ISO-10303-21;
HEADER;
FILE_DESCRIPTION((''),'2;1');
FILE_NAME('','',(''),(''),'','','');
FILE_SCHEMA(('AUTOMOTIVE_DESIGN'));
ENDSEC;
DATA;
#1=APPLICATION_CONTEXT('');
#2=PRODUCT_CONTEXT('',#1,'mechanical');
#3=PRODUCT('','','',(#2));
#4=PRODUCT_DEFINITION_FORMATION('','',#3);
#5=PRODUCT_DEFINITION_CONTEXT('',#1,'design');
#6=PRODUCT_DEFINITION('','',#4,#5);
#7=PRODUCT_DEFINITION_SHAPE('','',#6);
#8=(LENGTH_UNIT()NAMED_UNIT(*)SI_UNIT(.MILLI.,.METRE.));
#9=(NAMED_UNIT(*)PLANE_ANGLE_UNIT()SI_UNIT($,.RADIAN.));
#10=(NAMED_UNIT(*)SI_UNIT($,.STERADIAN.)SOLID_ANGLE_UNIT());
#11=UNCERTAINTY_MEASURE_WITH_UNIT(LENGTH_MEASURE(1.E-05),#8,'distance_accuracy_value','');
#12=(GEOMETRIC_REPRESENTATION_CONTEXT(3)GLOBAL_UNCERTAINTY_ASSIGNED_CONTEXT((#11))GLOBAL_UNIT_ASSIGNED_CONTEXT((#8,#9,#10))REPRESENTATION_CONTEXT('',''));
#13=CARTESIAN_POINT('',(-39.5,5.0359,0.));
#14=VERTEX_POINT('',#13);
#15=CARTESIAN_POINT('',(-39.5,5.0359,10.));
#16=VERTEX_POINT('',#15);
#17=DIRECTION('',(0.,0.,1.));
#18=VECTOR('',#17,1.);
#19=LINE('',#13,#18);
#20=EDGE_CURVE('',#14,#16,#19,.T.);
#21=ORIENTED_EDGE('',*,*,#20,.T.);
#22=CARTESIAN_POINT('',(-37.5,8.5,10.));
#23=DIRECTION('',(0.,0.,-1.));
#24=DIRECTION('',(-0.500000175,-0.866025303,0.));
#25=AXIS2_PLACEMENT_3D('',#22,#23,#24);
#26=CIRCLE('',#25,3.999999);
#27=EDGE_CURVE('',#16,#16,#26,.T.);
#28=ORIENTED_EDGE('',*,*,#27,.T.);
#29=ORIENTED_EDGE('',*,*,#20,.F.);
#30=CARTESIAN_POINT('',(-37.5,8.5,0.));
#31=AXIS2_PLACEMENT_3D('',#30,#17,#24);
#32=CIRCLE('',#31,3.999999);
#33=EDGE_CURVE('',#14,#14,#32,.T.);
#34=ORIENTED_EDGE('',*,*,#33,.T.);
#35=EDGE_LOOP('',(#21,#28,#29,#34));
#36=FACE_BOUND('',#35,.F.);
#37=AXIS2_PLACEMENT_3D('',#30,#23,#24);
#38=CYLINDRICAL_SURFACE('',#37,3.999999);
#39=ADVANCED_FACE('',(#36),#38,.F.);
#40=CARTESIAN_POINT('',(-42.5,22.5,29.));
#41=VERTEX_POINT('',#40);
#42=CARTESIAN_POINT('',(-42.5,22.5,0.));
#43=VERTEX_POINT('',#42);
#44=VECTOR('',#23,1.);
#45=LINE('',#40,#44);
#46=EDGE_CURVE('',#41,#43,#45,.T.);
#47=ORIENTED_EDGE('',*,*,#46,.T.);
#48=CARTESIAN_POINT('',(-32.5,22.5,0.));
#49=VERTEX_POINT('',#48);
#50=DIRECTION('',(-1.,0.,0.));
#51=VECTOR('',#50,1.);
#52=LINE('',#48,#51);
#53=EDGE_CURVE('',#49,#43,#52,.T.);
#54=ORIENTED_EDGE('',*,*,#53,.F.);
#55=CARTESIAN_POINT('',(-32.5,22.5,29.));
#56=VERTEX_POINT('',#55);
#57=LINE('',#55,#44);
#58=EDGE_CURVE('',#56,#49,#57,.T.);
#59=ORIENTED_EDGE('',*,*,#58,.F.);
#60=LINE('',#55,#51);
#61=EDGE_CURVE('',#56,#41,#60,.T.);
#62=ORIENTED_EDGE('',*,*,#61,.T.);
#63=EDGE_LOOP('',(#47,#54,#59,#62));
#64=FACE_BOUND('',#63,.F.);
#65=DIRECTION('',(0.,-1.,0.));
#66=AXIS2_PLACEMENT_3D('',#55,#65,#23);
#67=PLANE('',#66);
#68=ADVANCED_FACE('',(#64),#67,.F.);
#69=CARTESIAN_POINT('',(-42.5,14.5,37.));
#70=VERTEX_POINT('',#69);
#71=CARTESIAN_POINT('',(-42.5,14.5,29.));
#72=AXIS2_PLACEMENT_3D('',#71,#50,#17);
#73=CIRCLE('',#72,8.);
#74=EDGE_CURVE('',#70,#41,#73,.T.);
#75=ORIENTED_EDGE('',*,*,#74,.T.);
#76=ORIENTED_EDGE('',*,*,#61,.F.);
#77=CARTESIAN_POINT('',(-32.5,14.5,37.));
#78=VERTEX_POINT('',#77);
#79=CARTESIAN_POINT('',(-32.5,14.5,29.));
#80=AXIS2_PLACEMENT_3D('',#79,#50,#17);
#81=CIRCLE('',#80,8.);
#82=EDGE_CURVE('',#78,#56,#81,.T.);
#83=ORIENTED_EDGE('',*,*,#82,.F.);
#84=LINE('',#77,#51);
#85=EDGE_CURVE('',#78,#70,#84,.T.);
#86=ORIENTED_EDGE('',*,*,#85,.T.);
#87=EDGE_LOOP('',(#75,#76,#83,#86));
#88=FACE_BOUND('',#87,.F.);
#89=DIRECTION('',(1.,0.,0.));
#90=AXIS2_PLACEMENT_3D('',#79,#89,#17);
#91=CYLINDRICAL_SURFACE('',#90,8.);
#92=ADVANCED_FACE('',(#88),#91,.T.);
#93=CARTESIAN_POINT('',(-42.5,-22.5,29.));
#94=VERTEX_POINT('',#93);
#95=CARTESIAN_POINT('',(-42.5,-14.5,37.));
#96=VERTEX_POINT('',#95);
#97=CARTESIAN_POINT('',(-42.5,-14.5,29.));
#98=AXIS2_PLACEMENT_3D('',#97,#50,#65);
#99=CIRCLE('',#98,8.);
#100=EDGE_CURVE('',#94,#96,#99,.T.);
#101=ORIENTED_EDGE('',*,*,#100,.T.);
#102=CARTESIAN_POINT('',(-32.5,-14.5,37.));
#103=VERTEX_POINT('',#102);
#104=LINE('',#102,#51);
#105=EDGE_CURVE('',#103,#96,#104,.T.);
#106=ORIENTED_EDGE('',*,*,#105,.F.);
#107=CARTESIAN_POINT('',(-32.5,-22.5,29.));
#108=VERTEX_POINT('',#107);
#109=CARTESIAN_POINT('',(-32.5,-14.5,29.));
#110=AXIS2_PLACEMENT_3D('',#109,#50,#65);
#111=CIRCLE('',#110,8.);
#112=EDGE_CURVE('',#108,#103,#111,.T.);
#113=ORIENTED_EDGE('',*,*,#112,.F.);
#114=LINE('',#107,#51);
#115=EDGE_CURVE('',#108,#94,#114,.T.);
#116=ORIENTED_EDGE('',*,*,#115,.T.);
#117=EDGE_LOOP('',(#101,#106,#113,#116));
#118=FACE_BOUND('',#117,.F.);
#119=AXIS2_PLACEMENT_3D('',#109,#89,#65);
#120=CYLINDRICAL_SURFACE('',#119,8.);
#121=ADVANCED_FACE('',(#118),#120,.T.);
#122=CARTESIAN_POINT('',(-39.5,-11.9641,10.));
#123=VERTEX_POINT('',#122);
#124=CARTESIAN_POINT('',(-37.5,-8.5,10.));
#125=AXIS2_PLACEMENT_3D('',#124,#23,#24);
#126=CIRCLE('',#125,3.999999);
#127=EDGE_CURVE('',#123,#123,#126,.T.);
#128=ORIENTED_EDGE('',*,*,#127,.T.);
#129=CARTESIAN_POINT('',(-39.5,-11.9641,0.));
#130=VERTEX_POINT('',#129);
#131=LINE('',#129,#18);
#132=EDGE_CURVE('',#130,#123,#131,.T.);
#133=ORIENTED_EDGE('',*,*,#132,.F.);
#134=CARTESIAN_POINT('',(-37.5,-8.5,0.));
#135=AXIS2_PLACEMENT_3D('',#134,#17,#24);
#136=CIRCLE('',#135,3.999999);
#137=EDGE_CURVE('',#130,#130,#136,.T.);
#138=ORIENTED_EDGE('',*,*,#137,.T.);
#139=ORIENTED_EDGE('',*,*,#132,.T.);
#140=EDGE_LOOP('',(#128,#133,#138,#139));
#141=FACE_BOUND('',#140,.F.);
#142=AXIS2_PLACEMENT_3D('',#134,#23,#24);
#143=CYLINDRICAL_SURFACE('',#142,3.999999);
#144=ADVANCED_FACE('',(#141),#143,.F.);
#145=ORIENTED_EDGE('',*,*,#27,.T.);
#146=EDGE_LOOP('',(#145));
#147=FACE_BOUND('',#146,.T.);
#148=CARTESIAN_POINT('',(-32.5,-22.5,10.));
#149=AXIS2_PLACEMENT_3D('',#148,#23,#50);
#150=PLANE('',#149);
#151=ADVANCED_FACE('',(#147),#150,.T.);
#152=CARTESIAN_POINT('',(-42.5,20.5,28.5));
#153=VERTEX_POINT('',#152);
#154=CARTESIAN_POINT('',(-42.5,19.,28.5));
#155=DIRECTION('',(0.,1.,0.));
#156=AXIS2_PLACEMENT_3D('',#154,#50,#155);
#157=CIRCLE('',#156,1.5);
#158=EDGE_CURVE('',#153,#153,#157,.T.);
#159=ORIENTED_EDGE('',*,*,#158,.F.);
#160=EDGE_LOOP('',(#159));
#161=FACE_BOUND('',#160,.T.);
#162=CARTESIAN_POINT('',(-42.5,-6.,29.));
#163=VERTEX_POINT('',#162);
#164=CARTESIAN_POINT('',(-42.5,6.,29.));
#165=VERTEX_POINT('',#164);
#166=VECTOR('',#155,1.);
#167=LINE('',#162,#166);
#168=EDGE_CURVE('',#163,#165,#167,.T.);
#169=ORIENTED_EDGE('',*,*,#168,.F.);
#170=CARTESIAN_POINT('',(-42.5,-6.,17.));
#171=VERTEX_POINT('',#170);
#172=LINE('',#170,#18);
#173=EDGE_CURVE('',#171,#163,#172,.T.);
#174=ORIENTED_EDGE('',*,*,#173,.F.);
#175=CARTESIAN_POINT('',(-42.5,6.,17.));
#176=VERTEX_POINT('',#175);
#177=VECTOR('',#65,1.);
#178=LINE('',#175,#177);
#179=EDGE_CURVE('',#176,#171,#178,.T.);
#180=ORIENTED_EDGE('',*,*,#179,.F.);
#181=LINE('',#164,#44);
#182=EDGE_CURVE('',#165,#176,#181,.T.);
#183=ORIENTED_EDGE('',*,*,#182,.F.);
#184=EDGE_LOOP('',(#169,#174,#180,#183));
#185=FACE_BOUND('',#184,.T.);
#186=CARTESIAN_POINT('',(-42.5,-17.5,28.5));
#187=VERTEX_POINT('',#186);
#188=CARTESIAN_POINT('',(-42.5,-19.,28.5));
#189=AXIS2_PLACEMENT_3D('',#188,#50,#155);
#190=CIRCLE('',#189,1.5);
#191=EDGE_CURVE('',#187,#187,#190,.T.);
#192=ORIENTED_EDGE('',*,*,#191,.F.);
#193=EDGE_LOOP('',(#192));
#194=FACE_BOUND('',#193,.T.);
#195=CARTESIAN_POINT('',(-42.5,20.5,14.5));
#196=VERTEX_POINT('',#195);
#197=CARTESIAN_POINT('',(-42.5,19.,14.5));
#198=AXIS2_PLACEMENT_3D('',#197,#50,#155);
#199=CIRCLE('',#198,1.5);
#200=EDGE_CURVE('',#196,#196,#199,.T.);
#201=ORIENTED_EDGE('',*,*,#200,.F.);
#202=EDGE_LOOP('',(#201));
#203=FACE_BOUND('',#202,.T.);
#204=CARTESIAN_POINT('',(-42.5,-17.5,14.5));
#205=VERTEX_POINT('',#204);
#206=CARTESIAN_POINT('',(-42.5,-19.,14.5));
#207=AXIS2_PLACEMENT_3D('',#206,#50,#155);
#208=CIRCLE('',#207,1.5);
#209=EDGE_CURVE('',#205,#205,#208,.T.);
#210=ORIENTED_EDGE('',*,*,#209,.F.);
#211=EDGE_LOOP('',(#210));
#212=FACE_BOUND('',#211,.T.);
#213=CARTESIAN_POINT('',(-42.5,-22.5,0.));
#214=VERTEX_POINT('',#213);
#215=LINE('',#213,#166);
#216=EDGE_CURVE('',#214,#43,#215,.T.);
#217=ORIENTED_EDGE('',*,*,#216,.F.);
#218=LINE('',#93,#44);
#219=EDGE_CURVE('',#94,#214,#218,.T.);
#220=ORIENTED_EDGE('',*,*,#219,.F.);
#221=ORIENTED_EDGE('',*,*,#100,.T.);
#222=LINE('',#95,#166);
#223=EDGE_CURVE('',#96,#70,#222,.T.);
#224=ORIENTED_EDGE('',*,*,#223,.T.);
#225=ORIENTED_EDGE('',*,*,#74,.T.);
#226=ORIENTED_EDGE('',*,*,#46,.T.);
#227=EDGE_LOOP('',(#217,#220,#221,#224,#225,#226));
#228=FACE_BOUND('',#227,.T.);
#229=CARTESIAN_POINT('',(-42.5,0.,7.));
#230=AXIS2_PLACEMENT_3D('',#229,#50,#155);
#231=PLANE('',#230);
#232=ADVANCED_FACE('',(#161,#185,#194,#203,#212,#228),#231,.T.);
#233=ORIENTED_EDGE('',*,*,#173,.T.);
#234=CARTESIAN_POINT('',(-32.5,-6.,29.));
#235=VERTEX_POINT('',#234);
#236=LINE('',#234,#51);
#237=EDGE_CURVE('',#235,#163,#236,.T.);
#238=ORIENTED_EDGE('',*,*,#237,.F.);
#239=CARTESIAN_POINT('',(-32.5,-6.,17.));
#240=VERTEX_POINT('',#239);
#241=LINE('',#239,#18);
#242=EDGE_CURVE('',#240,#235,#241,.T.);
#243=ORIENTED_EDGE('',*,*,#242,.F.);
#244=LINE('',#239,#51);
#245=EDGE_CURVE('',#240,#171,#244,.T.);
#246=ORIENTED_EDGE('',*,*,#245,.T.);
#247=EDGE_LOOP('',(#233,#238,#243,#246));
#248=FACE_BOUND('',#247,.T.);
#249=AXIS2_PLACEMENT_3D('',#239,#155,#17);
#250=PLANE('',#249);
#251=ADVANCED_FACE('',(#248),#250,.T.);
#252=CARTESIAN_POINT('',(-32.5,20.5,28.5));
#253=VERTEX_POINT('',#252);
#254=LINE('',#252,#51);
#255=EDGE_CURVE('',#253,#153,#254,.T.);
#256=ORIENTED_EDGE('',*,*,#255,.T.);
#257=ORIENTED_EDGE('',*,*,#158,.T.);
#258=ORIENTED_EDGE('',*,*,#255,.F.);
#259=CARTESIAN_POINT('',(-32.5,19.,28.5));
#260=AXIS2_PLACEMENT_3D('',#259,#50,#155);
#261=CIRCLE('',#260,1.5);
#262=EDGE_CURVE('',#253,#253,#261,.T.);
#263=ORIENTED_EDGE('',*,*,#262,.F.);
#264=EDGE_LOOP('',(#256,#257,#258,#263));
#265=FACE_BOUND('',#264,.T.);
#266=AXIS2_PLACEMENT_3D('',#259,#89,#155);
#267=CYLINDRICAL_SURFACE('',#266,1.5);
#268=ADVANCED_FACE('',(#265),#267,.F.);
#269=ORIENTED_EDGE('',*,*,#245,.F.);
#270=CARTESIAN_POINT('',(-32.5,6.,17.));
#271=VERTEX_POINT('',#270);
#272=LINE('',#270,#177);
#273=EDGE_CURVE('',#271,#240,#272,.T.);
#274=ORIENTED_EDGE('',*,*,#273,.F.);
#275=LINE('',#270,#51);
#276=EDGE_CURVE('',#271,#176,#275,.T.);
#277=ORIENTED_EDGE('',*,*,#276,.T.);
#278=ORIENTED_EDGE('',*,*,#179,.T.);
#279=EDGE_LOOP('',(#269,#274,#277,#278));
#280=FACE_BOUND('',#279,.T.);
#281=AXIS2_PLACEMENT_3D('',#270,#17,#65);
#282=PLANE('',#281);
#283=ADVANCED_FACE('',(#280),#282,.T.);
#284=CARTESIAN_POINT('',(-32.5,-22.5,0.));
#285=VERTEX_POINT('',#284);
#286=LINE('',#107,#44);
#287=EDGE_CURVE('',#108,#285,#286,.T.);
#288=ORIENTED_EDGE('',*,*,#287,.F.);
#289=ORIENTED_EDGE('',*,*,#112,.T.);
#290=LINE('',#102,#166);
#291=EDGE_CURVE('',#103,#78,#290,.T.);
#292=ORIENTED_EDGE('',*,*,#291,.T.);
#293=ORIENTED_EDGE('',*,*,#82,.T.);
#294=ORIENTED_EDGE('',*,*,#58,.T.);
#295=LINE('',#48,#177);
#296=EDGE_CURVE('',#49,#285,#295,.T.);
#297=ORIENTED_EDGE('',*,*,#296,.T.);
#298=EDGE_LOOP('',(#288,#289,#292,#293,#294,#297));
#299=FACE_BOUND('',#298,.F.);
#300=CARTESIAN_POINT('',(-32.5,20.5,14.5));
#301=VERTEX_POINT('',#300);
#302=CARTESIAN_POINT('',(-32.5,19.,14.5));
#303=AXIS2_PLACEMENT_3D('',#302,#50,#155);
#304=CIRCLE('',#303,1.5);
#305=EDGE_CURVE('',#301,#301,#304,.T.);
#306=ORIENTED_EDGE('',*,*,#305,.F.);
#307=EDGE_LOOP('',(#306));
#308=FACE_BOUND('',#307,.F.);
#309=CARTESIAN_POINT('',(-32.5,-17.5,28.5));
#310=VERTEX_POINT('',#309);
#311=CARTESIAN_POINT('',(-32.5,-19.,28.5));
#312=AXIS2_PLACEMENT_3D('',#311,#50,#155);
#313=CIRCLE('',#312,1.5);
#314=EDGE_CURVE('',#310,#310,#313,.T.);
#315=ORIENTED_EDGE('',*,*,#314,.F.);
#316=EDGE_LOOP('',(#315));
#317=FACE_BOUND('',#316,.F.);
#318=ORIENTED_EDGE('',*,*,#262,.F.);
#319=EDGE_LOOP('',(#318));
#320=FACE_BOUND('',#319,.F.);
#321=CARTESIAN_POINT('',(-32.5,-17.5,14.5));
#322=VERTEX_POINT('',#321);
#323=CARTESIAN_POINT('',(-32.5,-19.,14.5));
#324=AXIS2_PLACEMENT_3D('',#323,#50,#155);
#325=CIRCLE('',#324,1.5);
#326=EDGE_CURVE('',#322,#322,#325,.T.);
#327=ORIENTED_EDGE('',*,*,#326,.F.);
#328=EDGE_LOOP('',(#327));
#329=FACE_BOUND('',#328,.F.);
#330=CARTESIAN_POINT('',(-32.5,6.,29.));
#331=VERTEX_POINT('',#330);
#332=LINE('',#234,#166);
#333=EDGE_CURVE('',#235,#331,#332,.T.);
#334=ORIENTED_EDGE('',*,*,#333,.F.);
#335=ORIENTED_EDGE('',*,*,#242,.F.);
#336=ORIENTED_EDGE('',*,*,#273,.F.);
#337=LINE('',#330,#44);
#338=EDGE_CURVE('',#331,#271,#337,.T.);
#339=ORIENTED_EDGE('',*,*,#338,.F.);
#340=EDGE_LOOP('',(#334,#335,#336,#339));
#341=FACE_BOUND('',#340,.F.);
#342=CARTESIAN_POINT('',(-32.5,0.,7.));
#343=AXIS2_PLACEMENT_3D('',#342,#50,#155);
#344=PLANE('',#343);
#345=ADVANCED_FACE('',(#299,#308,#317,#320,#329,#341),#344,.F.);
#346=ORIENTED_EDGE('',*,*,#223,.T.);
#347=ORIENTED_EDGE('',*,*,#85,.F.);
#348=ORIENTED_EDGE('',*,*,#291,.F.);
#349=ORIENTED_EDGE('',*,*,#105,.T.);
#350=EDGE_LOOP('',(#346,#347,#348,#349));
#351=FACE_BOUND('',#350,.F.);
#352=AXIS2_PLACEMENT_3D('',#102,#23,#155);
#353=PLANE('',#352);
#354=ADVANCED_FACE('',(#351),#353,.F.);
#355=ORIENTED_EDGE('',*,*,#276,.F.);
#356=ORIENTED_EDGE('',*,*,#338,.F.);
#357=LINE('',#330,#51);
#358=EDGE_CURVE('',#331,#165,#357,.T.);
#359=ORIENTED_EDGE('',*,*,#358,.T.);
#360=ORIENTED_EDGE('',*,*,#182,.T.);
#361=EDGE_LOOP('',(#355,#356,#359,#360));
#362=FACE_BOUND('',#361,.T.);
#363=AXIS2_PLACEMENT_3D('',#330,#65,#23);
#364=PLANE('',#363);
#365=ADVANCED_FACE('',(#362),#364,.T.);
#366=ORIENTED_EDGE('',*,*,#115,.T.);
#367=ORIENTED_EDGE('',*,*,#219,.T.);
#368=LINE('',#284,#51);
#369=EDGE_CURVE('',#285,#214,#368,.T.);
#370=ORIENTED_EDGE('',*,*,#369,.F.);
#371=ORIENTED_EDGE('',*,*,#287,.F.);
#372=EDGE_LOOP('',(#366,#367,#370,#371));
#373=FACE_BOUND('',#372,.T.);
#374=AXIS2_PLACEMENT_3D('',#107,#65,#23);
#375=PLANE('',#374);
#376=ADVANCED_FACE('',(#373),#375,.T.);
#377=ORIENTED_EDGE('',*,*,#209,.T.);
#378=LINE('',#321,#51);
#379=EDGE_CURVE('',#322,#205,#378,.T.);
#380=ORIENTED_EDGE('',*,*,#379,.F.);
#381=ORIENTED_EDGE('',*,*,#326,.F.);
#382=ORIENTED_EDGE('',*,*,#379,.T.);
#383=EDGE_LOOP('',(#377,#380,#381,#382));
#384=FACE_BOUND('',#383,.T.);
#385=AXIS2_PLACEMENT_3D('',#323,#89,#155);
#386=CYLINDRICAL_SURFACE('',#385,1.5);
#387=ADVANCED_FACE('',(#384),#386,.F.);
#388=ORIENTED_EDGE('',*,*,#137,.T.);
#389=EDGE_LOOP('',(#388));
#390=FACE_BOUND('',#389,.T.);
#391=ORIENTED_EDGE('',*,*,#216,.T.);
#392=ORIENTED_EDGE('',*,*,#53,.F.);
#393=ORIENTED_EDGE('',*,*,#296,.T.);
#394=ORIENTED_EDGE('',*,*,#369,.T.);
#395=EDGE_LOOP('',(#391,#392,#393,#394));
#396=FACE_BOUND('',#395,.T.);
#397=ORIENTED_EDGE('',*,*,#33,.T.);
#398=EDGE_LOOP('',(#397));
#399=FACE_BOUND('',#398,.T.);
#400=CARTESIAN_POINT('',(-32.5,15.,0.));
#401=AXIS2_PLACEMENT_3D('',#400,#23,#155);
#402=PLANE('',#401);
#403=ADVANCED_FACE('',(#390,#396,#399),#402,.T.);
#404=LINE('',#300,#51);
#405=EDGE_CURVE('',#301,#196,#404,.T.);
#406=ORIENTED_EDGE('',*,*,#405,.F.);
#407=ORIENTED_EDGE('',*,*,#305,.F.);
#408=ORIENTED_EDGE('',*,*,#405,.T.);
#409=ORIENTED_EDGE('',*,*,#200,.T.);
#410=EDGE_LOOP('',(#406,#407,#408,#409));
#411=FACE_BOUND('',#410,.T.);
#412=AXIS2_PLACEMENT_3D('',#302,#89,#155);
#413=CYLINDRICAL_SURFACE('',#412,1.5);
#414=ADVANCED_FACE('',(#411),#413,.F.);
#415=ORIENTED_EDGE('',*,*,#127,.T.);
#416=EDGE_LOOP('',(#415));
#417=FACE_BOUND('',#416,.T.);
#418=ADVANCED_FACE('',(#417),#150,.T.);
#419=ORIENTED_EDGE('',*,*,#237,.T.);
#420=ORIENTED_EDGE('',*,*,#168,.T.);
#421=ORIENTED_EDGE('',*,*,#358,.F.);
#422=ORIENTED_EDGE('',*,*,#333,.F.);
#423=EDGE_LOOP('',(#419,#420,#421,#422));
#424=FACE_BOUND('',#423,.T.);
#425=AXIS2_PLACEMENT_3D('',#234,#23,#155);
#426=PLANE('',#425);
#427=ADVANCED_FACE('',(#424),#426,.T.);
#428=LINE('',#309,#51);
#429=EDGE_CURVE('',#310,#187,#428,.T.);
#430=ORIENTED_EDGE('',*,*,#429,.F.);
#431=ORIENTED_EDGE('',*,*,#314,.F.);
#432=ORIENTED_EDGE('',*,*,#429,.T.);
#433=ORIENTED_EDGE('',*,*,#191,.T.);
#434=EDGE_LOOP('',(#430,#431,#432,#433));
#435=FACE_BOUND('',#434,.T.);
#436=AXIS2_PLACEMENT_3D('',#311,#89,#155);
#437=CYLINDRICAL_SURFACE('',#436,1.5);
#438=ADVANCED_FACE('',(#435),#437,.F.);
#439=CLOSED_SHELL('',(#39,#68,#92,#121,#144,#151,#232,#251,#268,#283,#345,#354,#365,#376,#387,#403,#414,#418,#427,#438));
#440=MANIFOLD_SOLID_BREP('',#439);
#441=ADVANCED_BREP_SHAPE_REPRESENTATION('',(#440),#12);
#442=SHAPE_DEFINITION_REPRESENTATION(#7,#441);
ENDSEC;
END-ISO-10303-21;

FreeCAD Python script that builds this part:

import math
import FreeCAD as App
import Part
import Sketcher
Q = App.Units.Quantity


def add_polygon(sketch, points):
    """Adds a closed chain of lines whose ends are joined by coincident constraints."""
    first, n = sketch.GeometryCount, len(points)
    for a, b in zip(points, points[1:] + points[:1]):
        sketch.addGeometry(Part.LineSegment(App.Vector(*a, 0), App.Vector(*b, 0)), False)
    for i in range(n):
        sketch.addConstraint(Sketcher.Constraint("Coincident", first + i, 2, first + (i + 1) % n, 1))

doc = App.newDocument("Part")
body = doc.addObject("PartDesign::Body", "Body")

# Sketch on YZ plane
sketch1 = body.newObject("Sketcher::SketchObject", "Sketch")
sketch1.AttachmentSupport = (doc.getObject("YZ_Plane"), [""])
sketch1.MapMode = "FlatFace"
sketch1.AttachmentOffset = App.Placement(App.Vector(0, 0, -32.5), App.Rotation())
sketch1.addGeometry(Part.LineSegment(App.Vector(22.5, 0, 0), App.Vector(-22.5, 0, 0)), False)  # 0
sketch1.addGeometry(Part.LineSegment(App.Vector(-22.5, 0, 0), App.Vector(-22.5, 29, 0)), False)  # 1
sketch1.addGeometry(Part.ArcOfCircle(Part.Circle(App.Vector(-14.5, 29, 0), App.Vector(0, 0, 1), 8), math.radians(90), math.radians(180)), False)  # 2
sketch1.addGeometry(Part.LineSegment(App.Vector(-14.5, 37, 0), App.Vector(14.5, 37, 0)), False)  # 3
sketch1.addGeometry(Part.ArcOfCircle(Part.Circle(App.Vector(14.5, 29, 0), App.Vector(0, 0, 1), 8), math.radians(0), math.radians(90)), False)  # 4
sketch1.addGeometry(Part.LineSegment(App.Vector(22.5, 29, 0), App.Vector(22.5, 0, 0)), False)  # 5
sketch1.addGeometry(Part.Circle(App.Vector(-19, 28.5, 0), App.Vector(0, 0, 1), 1.5), False)  # 6
sketch1.addGeometry(Part.Circle(App.Vector(19, 28.5, 0), App.Vector(0, 0, 1), 1.5), False)  # 7
sketch1.addGeometry(Part.Circle(App.Vector(-19, 14.5, 0), App.Vector(0, 0, 1), 1.5), False)  # 8
sketch1.addGeometry(Part.Circle(App.Vector(19, 14.5, 0), App.Vector(0, 0, 1), 1.5), False)  # 9
add_polygon(sketch1, [(-6, 29), (-6, 17), (6, 17), (6, 29)])  # lines 10-13
sketch1.addConstraint(Sketcher.Constraint("Coincident", 0, 2, 1, 1))
sketch1.addConstraint(Sketcher.Constraint("Tangent", 1, 2, 2, 2))
sketch1.addConstraint(Sketcher.Constraint("Tangent", 2, 1, 3, 1))
sketch1.addConstraint(Sketcher.Constraint("Tangent", 3, 2, 4, 2))
sketch1.addConstraint(Sketcher.Constraint("Tangent", 4, 1, 5, 1))
sketch1.addConstraint(Sketcher.Constraint("Coincident", 5, 2, 0, 1))
sketch1.addConstraint(Sketcher.Constraint("Horizontal", 0))
sketch1.addConstraint(Sketcher.Constraint("Vertical", 1))
sketch1.addConstraint(Sketcher.Constraint("Horizontal", 3))
sketch1.addConstraint(Sketcher.Constraint("Vertical", 5))
sketch1.addConstraint(Sketcher.Constraint("Vertical", 10))
sketch1.addConstraint(Sketcher.Constraint("Horizontal", 11))
sketch1.addConstraint(Sketcher.Constraint("Vertical", 12))
sketch1.addConstraint(Sketcher.Constraint("Horizontal", 13))
sketch1.addConstraint(Sketcher.Constraint("Equal", 2, 4))
sketch1.addConstraint(Sketcher.Constraint("Equal", 6, 7))
sketch1.addConstraint(Sketcher.Constraint("Equal", 7, 8))
sketch1.addConstraint(Sketcher.Constraint("Equal", 8, 9))
sketch1.addConstraint(Sketcher.Constraint("Symmetric", 0, 2, 5, 2, -1, 1))
sketch1.addConstraint(Sketcher.Constraint("Symmetric", 6, 3, 7, 3, -2))
sketch1.addConstraint(Sketcher.Constraint("Symmetric", 8, 3, 9, 3, -2))
sketch1.addConstraint(Sketcher.Constraint("Horizontal", 4, 1, 12, 2))
sketch1.addConstraint(Sketcher.Constraint("Vertical", 6, 3, 8, 3))
sketch1.addConstraint(Sketcher.Constraint("Equal", 3, 1))
sketch1.addConstraint(Sketcher.Constraint("Equal", 13, 10))
sketch1.addConstraint(Sketcher.Constraint("DistanceX", 11, 1, 11, 2, Q("12 mm")))
sketch1.addConstraint(Sketcher.Constraint("Diameter", 6, Q("3 mm")))
sketch1.addConstraint(Sketcher.Constraint("Radius", 2, Q("8 mm")))
sketch1.addConstraint(Sketcher.Constraint("DistanceX", 0, 2, 0, 1, Q("45 mm")))
sketch1.addConstraint(Sketcher.Constraint("DistanceX", 6, 3, -1, 1, Q("19 mm")))
sketch1.addConstraint(Sketcher.Constraint("DistanceX", 10, 2, -1, 1, Q("6 mm")))
sketch1.addConstraint(Sketcher.Constraint("DistanceY", 8, 3, 6, 3, Q("14 mm")))
sketch1.addConstraint(Sketcher.Constraint("DistanceY", -1, 1, 6, 3, Q("28.5 mm")))
pad1 = body.newObject("PartDesign::Pad", "Pad")
pad1.Profile = sketch1
pad1.Length = 10
pad1.Reversed = True

# Sketch on XY plane
sketch2 = body.newObject("Sketcher::SketchObject", "Sketch001")
sketch2.AttachmentSupport = (doc.getObject("XY_Plane"), [""])
sketch2.MapMode = "FlatFace"
sketch2.addGeometry(Part.Circle(App.Vector(-37.5, 8.5, 0), App.Vector(0, 0, 1), 3.999999), False)
sketch2.addGeometry(Part.Circle(App.Vector(-37.5, -8.5, 0), App.Vector(0, 0, 1), 3.999999), False)
sketch2.addConstraint(Sketcher.Constraint("Equal", 0, 1))
sketch2.addConstraint(Sketcher.Constraint("Symmetric", 0, 3, 1, 3, -1))
sketch2.addConstraint(Sketcher.Constraint("Diameter", 0, Q("8 mm")))
sketch2.addConstraint(Sketcher.Constraint("DistanceY", 1, 3, 0, 3, Q("17 mm")))
sketch2.addConstraint(Sketcher.Constraint("DistanceX", 0, 3, -1, 1, Q("37.5 mm")))
pocket1 = body.newObject("PartDesign::Pocket", "Pocket")
pocket1.Profile = sketch2
pocket1.Length = 10
pocket1.Reversed = True

doc.recompute()
